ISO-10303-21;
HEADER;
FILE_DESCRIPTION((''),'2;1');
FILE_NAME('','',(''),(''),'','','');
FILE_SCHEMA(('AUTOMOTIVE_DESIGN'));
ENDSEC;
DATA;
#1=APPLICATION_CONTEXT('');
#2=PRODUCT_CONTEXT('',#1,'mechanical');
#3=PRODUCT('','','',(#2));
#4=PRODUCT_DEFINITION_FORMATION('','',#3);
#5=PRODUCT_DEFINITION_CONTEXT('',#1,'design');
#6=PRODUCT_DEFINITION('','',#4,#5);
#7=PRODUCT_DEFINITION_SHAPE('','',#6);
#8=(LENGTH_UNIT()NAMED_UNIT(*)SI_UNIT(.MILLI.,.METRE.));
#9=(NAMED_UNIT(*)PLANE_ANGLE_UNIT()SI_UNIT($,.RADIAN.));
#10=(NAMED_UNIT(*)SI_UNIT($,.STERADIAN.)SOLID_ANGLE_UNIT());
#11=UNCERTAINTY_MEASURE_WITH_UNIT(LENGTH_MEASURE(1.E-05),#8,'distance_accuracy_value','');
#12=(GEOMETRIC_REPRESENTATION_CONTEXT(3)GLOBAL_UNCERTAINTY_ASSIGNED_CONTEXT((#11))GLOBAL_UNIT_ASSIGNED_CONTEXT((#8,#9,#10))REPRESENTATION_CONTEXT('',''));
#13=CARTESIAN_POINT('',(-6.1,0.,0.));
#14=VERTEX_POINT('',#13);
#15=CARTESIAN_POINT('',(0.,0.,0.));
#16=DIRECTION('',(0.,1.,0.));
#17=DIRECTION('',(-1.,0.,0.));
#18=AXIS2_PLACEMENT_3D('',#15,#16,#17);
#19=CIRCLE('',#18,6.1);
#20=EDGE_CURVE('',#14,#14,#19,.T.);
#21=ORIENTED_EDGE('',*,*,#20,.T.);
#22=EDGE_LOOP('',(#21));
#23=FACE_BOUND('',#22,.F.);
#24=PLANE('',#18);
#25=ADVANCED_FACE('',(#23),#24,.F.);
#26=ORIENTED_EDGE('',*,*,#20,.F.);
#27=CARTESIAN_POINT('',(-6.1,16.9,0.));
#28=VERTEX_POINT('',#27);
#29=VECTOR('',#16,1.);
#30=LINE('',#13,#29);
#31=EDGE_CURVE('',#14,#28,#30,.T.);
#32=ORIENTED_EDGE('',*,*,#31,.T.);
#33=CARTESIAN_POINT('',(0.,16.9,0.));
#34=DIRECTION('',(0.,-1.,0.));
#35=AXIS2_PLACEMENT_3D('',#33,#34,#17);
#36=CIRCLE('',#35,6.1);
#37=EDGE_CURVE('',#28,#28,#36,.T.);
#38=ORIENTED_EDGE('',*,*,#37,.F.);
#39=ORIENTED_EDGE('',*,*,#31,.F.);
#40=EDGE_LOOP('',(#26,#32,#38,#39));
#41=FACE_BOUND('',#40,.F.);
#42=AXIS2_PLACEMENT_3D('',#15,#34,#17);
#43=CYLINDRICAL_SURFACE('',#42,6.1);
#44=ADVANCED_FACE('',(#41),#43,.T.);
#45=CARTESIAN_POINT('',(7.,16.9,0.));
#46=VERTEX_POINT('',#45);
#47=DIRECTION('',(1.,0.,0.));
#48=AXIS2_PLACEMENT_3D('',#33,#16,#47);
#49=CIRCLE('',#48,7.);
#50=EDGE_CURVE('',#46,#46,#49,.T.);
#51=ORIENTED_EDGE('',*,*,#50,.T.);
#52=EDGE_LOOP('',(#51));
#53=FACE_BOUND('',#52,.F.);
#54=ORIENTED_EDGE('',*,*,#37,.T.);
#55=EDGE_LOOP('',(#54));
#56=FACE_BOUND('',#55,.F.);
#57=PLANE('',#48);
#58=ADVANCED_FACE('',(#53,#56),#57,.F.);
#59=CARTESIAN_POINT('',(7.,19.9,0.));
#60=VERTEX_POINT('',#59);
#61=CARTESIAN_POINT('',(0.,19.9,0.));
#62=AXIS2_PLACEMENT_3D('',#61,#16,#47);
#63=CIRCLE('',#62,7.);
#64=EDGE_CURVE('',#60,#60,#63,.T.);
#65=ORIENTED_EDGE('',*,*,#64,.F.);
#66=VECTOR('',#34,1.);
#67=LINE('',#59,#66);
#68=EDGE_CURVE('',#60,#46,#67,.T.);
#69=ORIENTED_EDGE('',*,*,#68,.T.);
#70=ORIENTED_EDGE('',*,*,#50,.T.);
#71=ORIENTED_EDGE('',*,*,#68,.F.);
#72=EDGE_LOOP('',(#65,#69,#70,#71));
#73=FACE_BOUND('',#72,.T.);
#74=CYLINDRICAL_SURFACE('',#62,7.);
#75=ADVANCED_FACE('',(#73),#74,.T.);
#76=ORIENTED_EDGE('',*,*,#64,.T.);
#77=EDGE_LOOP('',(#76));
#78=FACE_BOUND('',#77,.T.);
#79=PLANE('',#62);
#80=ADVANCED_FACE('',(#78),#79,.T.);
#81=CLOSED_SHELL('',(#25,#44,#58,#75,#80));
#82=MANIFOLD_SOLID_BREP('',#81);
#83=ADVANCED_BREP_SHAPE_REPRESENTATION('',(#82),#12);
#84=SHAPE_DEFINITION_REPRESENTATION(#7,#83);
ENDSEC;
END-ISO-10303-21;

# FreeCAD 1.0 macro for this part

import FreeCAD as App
import Part
import Sketcher

doc = App.newDocument("Part")
body = doc.addObject("PartDesign::Body", "Body")

# Sketch on XZ plane
sketch1 = doc.addObject("Sketcher::SketchObject", "Sketch")
body.addObject(sketch1)
sketch1.AttachmentSupport = (doc.XZ_Plane, [""])
sketch1.MapMode = "FlatFace"
sketch1.addGeometry(Part.Circle(App.Vector(0, 0, 0), App.Vector(0, 0, 1), 6.1), False)
sketch1.addConstraint(Sketcher.Constraint("Coincident", 0, 3, -1, 1))
sketch1.addConstraint(Sketcher.Constraint("Diameter", 0, 12.2))
pad1 = doc.addObject("PartDesign::Pad", "Pad")
body.addObject(pad1)
pad1.Profile = sketch1
pad1.Length = 19.9
pad1.Reversed = True

# Sketch on XZ plane
sketch2 = doc.addObject("Sketcher::SketchObject", "Sketch001")
body.addObject(sketch2)
sketch2.AttachmentSupport = (doc.XZ_Plane, [""])
sketch2.MapMode = "FlatFace"
sketch2.AttachmentOffset = App.Placement(App.Vector(0, 0, -19.9), App.Rotation())
sketch2.addGeometry(Part.Circle(App.Vector(0, 0, 0), App.Vector(0, 0, 1), 7), False)
sketch2.addConstraint(Sketcher.Constraint("Coincident", 0, 3, -1, 1))
sketch2.addConstraint(Sketcher.Constraint("Diameter", 0, 14.0))
pad2 = doc.addObject("PartDesign::Pad", "Pad001")
body.addObject(pad2)
pad2.Profile = sketch2
pad2.Length = 3

doc.recompute()
